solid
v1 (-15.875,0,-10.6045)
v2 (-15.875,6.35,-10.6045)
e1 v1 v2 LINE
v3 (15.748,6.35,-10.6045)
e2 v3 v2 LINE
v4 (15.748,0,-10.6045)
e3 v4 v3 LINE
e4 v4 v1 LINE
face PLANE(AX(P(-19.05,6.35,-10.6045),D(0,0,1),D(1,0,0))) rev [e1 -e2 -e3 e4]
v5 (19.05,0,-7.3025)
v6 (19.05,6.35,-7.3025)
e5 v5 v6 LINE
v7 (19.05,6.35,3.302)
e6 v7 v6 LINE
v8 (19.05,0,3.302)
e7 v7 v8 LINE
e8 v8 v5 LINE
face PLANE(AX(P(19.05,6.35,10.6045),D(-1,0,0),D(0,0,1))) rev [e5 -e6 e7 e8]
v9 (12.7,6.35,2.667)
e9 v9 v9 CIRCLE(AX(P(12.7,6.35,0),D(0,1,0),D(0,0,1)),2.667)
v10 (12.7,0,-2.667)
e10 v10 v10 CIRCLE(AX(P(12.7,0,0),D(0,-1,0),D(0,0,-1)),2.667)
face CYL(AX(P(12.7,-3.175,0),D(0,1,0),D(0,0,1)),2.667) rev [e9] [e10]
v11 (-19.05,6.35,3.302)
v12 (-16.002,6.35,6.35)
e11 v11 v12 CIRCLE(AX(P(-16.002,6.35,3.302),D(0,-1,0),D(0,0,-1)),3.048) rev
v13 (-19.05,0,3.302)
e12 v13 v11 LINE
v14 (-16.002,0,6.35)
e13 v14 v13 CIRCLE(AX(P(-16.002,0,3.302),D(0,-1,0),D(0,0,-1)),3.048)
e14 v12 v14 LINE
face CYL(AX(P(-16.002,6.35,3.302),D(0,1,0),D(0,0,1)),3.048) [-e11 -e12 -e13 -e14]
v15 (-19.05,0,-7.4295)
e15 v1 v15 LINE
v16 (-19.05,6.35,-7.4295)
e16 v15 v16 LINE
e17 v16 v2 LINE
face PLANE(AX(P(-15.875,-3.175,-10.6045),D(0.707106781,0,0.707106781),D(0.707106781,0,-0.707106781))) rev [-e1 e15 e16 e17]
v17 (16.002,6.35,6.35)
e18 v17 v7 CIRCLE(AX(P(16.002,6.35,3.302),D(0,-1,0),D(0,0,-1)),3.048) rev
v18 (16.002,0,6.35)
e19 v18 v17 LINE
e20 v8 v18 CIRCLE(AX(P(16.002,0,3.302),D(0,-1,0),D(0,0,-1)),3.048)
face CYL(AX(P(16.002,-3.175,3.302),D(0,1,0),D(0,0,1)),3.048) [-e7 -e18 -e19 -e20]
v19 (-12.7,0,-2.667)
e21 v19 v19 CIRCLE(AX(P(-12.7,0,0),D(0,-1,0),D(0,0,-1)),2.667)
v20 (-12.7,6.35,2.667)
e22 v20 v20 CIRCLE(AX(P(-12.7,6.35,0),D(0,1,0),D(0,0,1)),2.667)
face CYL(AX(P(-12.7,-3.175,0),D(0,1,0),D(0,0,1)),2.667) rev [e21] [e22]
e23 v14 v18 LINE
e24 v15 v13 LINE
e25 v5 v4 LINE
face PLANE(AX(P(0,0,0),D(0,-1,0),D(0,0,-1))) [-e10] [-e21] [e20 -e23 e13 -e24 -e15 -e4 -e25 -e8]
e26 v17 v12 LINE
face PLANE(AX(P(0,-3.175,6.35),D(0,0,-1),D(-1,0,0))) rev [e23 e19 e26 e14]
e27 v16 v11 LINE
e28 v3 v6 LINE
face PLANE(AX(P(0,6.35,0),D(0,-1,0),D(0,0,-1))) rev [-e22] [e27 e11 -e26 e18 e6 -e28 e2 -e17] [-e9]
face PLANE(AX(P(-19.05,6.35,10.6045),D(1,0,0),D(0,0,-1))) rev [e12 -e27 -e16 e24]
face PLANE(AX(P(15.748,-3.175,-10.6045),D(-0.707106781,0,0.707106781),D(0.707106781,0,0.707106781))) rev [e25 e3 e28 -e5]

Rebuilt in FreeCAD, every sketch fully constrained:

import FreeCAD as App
import Part
import Sketcher
from FreeCAD import Vector
Q = App.Units.Quantity


def edges_at(feature, points):
    """Names of the edges that pass closest to the given points."""
    edges = feature.Shape.Edges
    near = lambda p: min(range(len(edges)), key=lambda i: edges[i].distToShape(Part.Vertex(*p))[0])
    return sorted({f"Edge{near(p) + 1}" for p in points})

doc = App.newDocument("Part")
body = doc.addObject("PartDesign::Body", "Body")

# Sketch on XZ plane
sketch1 = body.newObject("Sketcher::SketchObject", "Sketch")
sketch1.AttachmentSupport = (doc.getObject("XZ_Plane"), [""])
sketch1.MapMode = "FlatFace"
sketch1.addGeometry(Part.LineSegment(Vector(-19, -11, 0), Vector(-19, 11, 0)), False)
sketch1.addGeometry(Part.LineSegment(Vector(-19, 11, 0), Vector(19, 11, 0)), False)
sketch1.addGeometry(Part.LineSegment(Vector(19, 11, 0), Vector(19, -11, 0)), False)
sketch1.addGeometry(Part.LineSegment(Vector(19, -11, 0), Vector(-19, -11, 0)), False)
sketch1.addConstraint(Sketcher.Constraint("Coincident", 0, 2, 1, 1))
sketch1.addConstraint(Sketcher.Constraint("Coincident", 1, 2, 2, 1))
sketch1.addConstraint(Sketcher.Constraint("Coincident", 2, 2, 3, 1))
sketch1.addConstraint(Sketcher.Constraint("Coincident", 3, 2, 0, 1))
sketch1.addConstraint(Sketcher.Constraint("Vertical", 0))
sketch1.addConstraint(Sketcher.Constraint("Horizontal", 1))
sketch1.addConstraint(Sketcher.Constraint("Vertical", 2))
sketch1.addConstraint(Sketcher.Constraint("Horizontal", 3))
sketch1.addConstraint(Sketcher.Constraint("Symmetric", 0, 2, 2, 2, -1, 1))
sketch1.addConstraint(Sketcher.Constraint("DistanceX", 1, 1, 1, 2, Q("1.5 in")))
sketch1.addConstraint(Sketcher.Constraint("DistanceY", 0, 1, 0, 2, Q("0.835 in")))
pad1 = body.newObject("PartDesign::Pad", "Pad")
pad1.Profile = sketch1
pad1.Length = Q("0.25 in")
pad1.Reversed = True

# Sketch on XZ plane
sketch2 = body.newObject("Sketcher::SketchObject", "Sketch001")
sketch2.AttachmentSupport = (doc.getObject("XZ_Plane"), [""])
sketch2.MapMode = "FlatFace"
sketch2.AttachmentOffset = App.Placement(Vector(0, 0, -0.25 * 25.4), App.Rotation())
sketch2.addGeometry(Part.Circle(Vector(-12.7, 0, 0), Vector(0, 0, 1), 2.7), False)
sketch2.addGeometry(Part.Circle(Vector(12.7, 0, 0), Vector(0, 0, 1), 2.7), False)
sketch2.addConstraint(Sketcher.Constraint("Equal", 0, 1))
sketch2.addConstraint(Sketcher.Constraint("Symmetric", 0, 3, 1, 3, -1, 1))
sketch2.addConstraint(Sketcher.Constraint("PointOnObject", 0, 3, -1))
sketch2.addConstraint(Sketcher.Constraint("Diameter", 0, Q("0.21 in")))
sketch2.addConstraint(Sketcher.Constraint("DistanceX", 0, 3, 1, 3, Q("1 in")))
pocket1 = body.newObject("PartDesign::Pocket", "Pocket")
pocket1.Profile = sketch2
pocket1.Length = Q("0.375 in")
pocket1.Reversed = True

# Sketch on XZ plane
sketch3 = body.newObject("Sketcher::SketchObject", "Sketch002")
sketch3.AttachmentSupport = (doc.getObject("XZ_Plane"), [""])
sketch3.MapMode = "FlatFace"
sketch3.AttachmentOffset = App.Placement(Vector(0, 0, -0.25 * 25.4), App.Rotation())
sketch3.addGeometry(Part.LineSegment(Vector(-15.9, -10.6, 0), Vector(-19.1, -10.6, 0)), False)
sketch3.addGeometry(Part.LineSegment(Vector(-19.1, -10.6, 0), Vector(-19.1, -7.4, 0)), False)
sketch3.addGeometry(Part.LineSegment(Vector(-19.1, -7.4, 0), Vector(-15.9, -10.6, 0)), False)
sketch3.addGeometry(Part.LineSegment(Vector(19.1, -10.6, 0), Vector(15.7, -10.6, 0)), False)
sketch3.addGeometry(Part.LineSegment(Vector(15.7, -10.6, 0), Vector(19.1, -7.3, 0)), False)
sketch3.addGeometry(Part.LineSegment(Vector(19.1, -7.3, 0), Vector(19.1, -10.6, 0)), False)
sketch3.addGeometry(Part.LineSegment(Vector(15.7, 10.6, 0), Vector(19.1, 10.6, 0)), False)
sketch3.addGeometry(Part.LineSegment(Vector(19.1, 10.6, 0), Vector(19.1, 7.3, 0)), False)
sketch3.addGeometry(Part.LineSegment(Vector(19.1, 7.3, 0), Vector(15.7, 10.6, 0)), False)
sketch3.addGeometry(Part.LineSegment(Vector(-19.1, 10.6, 0), Vector(-15.9, 10.6, 0)), False)
sketch3.addGeometry(Part.LineSegment(Vector(-15.9, 10.6, 0), Vector(-19.1, 7.4, 0)), False)
sketch3.addGeometry(Part.LineSegment(Vector(-19.1, 7.4, 0), Vector(-19.1, 10.6, 0)), False)
sketch3.addConstraint(Sketcher.Constraint("Coincident", 0, 2, 1, 1))
sketch3.addConstraint(Sketcher.Constraint("Coincident", 1, 2, 2, 1))
sketch3.addConstraint(Sketcher.Constraint("Coincident", 2, 2, 0, 1))
sketch3.addConstraint(Sketcher.Constraint("Coincident", 3, 2, 4, 1))
sketch3.addConstraint(Sketcher.Constraint("Coincident", 4, 2, 5, 1))
sketch3.addConstraint(Sketcher.Constraint("Coincident", 5, 2, 3, 1))
sketch3.addConstraint(Sketcher.Constraint("Coincident", 6, 2, 7, 1))
sketch3.addConstraint(Sketcher.Constraint("Coincident", 7, 2, 8, 1))
sketch3.addConstraint(Sketcher.Constraint("Coincident", 8, 2, 6, 1))
sketch3.addConstraint(Sketcher.Constraint("Coincident", 9, 2, 10, 1))
sketch3.addConstraint(Sketcher.Constraint("Coincident", 10, 2, 11, 1))
sketch3.addConstraint(Sketcher.Constraint("Coincident", 11, 2, 9, 1))
sketch3.addConstraint(Sketcher.Constraint("Horizontal", 0))
sketch3.addConstraint(Sketcher.Constraint("Vertical", 1))
sketch3.addConstraint(Sketcher.Constraint("Horizontal", 3))
sketch3.addConstraint(Sketcher.Constraint("Vertical", 5))
sketch3.addConstraint(Sketcher.Constraint("Horizontal", 6))
sketch3.addConstraint(Sketcher.Constraint("Vertical", 7))
sketch3.addConstraint(Sketcher.Constraint("Horizontal", 9))
sketch3.addConstraint(Sketcher.Constraint("Vertical", 11))
sketch3.addConstraint(Sketcher.Constraint("Symmetric", 0, 2, 6, 2, -1, 1))
sketch3.addConstraint(Sketcher.Constraint("Symmetric", 5, 2, 11, 2, -1, 1))
sketch3.addConstraint(Sketcher.Constraint("Symmetric", 0, 2, 5, 2, -2))
sketch3.addConstraint(Sketcher.Constraint("Perpendicular", 2, 4))
sketch3.addConstraint(Sketcher.Constraint("Perpendicular", 4, 8))
sketch3.addConstraint(Sketcher.Constraint("Perpendicular", 8, 10))
sketch3.addConstraint(Sketcher.Constraint("Vertical", 3, 2, 8, 2))
sketch3.addConstraint(Sketcher.Constraint("Vertical", 2, 2, 9, 2))
sketch3.addConstraint(Sketcher.Constraint("Equal", 9, 1))
sketch3.addConstraint(Sketcher.Constraint("DistanceX", 3, 2, 3, 1, Q("0.13 in")))
sketch3.addConstraint(Sketcher.Constraint("DistanceX", 1, 2, 4, 2, Q("1.5 in")))
sketch3.addConstraint(Sketcher.Constraint("DistanceX", 0, 2, 0, 1, Q("0.125 in")))
sketch3.addConstraint(Sketcher.Constraint("DistanceY", 1, 2, 6, 2, Q("0.71 in")))
pocket2 = body.newObject("PartDesign::Pocket", "Pocket001")
pocket2.Profile = sketch3
pocket2.Length = Q("0.375 in")
pocket2.Reversed = True

# Sketch on XZ plane
sketch4 = body.newObject("Sketcher::SketchObject", "Sketch003")
sketch4.AttachmentSupport = (doc.getObject("XZ_Plane"), [""])
sketch4.MapMode = "FlatFace"
sketch4.AttachmentOffset = App.Placement(Vector(0, 0, -0.25 * 25.4), App.Rotation())
sketch4.addGeometry(Part.LineSegment(Vector(-19.1, 7.4, 0), Vector(-15.9, 10.6, 0)), False)
sketch4.addGeometry(Part.LineSegment(Vector(-15.9, 10.6, 0), Vector(15.7, 10.6, 0)), False)
sketch4.addGeometry(Part.LineSegment(Vector(15.7, 10.6, 0), Vector(19.1, 7.3, 0)), False)
sketch4.addGeometry(Part.LineSegment(Vector(19.1, 7.3, 0), Vector(19.1, 6.3, 0)), False)
sketch4.addGeometry(Part.LineSegment(Vector(19.1, 6.3, 0), Vector(-19.1, 6.3, 0)), False)
sketch4.addGeometry(Part.LineSegment(Vector(-19.1, 6.3, 0), Vector(-19.1, 7.4, 0)), False)
sketch4.addConstraint(Sketcher.Constraint("Coincident", 0, 2, 1, 1))
sketch4.addConstraint(Sketcher.Constraint("Coincident", 1, 2, 2, 1))
sketch4.addConstraint(Sketcher.Constraint("Coincident", 2, 2, 3, 1))
sketch4.addConstraint(Sketcher.Constraint("Coincident", 3, 2, 4, 1))
sketch4.addConstraint(Sketcher.Constraint("Coincident", 4, 2, 5, 1))
sketch4.addConstraint(Sketcher.Constraint("Coincident", 5, 2, 0, 1))
sketch4.addConstraint(Sketcher.Constraint("Horizontal", 1))
sketch4.addConstraint(Sketcher.Constraint("Vertical", 3))
sketch4.addConstraint(Sketcher.Constraint("Horizontal", 4))
sketch4.addConstraint(Sketcher.Constraint("Vertical", 5))
sketch4.addConstraint(Sketcher.Constraint("Perpendicular", 0, 2))
sketch4.addConstraint(Sketcher.Constraint("DistanceX", 4, 2, 4, 1, Q("1.5 in")))
sketch4.addConstraint(Sketcher.Constraint("Angle", 0, Q("45 deg")))
sketch4.addConstraint(Sketcher.Constraint("DistanceX", 1, 1, 1, 2, Q("1.245 in")))
sketch4.addConstraint(Sketcher.Constraint("DistanceX", -1, 1, 1, 2, Q("0.62 in")))
sketch4.addConstraint(Sketcher.Constraint("DistanceX", -1, 1, 2, 2, Q("0.75 in")))
sketch4.addConstraint(Sketcher.Constraint("DistanceY", -1, 1, 3, 2, Q("0.25 in")))
sketch4.addConstraint(Sketcher.Constraint("DistanceY", 3, 2, 3, 1, Q("0.0375 in")))
pocket3 = body.newObject("PartDesign::Pocket", "Pocket002")
pocket3.Profile = sketch4
pocket3.Length = Q("0.375 in")
pocket3.Reversed = True
doc.recompute()

fillet = body.newObject("PartDesign::Fillet", "Fillet")
fillet.Base = (pocket3, edges_at(pocket3, [(-19.05, 3.175, 6.35), (19.05, 3.175, 6.35)]))
fillet.Radius = Q("0.12 in")

doc.recompute()
